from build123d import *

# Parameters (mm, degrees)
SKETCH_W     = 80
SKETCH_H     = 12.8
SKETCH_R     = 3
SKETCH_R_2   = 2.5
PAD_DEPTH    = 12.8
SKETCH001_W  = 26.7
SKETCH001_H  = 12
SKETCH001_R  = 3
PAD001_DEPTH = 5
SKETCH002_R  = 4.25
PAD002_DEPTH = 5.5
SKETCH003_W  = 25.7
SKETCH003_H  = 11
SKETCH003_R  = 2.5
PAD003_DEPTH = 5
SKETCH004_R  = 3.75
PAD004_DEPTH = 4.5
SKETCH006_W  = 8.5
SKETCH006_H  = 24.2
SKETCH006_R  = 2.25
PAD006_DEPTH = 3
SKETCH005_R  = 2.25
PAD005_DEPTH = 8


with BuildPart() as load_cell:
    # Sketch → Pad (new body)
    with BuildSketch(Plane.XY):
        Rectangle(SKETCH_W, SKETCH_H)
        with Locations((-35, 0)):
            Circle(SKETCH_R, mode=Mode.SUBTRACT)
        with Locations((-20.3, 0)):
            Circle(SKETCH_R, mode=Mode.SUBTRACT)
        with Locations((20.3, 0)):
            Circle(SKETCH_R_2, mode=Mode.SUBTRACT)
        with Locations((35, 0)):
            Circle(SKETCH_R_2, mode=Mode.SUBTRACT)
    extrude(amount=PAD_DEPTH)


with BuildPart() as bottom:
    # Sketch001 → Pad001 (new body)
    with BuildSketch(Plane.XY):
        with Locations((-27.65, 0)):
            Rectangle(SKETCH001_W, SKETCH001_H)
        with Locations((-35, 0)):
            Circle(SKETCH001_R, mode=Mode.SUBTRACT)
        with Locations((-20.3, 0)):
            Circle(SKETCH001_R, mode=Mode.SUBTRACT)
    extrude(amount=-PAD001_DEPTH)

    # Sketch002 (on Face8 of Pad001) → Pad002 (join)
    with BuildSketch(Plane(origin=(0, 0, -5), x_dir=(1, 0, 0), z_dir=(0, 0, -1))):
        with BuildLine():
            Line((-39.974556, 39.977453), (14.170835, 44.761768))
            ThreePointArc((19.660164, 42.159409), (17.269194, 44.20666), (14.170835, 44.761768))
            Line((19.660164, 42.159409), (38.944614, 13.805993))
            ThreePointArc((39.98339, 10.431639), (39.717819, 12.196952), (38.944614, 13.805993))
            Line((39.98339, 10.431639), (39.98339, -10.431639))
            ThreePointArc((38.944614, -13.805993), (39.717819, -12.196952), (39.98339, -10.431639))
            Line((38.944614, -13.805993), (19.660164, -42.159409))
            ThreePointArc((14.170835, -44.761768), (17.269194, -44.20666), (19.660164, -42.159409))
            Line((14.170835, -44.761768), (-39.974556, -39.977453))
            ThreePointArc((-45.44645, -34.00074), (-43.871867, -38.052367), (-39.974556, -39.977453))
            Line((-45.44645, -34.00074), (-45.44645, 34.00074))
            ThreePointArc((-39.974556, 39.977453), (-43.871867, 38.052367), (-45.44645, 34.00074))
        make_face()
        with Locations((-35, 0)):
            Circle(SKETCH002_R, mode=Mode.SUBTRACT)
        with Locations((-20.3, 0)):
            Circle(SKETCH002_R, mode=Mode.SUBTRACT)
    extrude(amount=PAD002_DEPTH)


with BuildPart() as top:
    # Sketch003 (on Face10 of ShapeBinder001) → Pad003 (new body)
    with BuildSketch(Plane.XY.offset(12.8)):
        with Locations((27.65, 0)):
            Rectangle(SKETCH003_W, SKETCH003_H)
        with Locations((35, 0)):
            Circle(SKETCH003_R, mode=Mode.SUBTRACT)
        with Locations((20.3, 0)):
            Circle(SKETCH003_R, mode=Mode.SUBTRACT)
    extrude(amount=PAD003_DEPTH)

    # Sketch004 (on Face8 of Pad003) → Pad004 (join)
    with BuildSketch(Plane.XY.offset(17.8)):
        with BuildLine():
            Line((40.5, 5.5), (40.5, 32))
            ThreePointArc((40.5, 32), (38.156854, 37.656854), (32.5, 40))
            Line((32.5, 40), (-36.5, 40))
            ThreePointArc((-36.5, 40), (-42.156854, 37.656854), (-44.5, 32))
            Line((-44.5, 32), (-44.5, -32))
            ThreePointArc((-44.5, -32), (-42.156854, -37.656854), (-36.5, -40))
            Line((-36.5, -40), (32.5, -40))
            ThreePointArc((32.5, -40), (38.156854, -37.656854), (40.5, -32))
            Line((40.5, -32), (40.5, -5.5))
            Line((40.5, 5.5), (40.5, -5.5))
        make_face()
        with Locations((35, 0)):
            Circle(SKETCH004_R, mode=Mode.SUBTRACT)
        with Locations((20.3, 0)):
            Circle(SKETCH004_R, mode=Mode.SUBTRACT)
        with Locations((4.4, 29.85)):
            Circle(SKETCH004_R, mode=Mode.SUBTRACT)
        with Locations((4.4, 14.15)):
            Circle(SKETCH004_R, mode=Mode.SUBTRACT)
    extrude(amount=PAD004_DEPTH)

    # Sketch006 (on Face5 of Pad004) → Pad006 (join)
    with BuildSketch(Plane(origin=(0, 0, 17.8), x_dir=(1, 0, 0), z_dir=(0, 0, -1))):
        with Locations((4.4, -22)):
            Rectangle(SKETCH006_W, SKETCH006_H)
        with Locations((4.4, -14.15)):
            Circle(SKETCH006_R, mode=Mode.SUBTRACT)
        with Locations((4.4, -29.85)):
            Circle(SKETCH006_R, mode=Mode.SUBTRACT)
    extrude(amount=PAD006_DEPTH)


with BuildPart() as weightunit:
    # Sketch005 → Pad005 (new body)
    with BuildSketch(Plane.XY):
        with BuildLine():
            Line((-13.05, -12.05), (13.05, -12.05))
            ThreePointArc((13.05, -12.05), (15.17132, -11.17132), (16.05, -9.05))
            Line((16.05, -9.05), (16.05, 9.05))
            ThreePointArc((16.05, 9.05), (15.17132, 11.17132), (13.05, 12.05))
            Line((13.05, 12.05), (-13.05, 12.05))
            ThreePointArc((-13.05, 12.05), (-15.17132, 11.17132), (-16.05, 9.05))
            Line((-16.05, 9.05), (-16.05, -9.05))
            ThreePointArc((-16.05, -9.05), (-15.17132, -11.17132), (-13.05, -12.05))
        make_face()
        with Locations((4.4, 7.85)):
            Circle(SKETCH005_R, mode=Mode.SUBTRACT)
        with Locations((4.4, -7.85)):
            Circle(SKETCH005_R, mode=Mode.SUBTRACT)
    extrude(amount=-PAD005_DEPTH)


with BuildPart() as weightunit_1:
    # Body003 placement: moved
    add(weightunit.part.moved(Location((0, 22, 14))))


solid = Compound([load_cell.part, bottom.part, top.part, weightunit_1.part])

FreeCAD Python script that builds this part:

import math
import FreeCAD as App
import Part
import Sketcher


def add_polygon(sketch, points):
    """Adds a closed chain of lines whose ends are joined by coincident constraints."""
    first, n = sketch.GeometryCount, len(points)
    for a, b in zip(points, points[1:] + points[:1]):
        sketch.addGeometry(Part.LineSegment(App.Vector(*a, 0), App.Vector(*b, 0)), False)
    for i in range(n):
        sketch.addConstraint(Sketcher.Constraint("Coincident", first + i, 2, first + (i + 1) % n, 1))

doc = App.newDocument("Part")
body = doc.addObject("PartDesign::Body", "Body")

sketch1 = body.newObject("Sketcher::SketchObject", "Sketch")
sketch1.AttachmentSupport = (doc.getObject("XY_Plane"), [""])
sketch1.MapMode = "FlatFace"
add_polygon(sketch1, [(-40, 6.4), (-40, -6.4), (40, -6.4), (40, 6.4)])
sketch1.addGeometry(Part.Circle(App.Vector(-35, 0, 0), App.Vector(0, 0, 1), 3), False)
sketch1.addGeometry(Part.Circle(App.Vector(-20.3, 0, 0), App.Vector(0, 0, 1), 3), False)
sketch1.addGeometry(Part.Circle(App.Vector(20.3, 0, 0), App.Vector(0, 0, 1), 2.5), False)
sketch1.addGeometry(Part.Circle(App.Vector(35, 0, 0), App.Vector(0, 0, 1), 2.5), False)
sketch1.addConstraint([
    Sketcher.Constraint("Vertical", 0),
    Sketcher.Constraint("Horizontal", 1),
    Sketcher.Constraint("Vertical", 2),
    Sketcher.Constraint("Horizontal", 3),
    Sketcher.Constraint("Equal", 4, 5),
    Sketcher.Constraint("Equal", 6, 7),
    Sketcher.Constraint("Symmetric", 5, 3, 6, 3, -1, 1),
    Sketcher.Constraint("Symmetric", 4, 3, 7, 3, -1, 1),
    Sketcher.Constraint("Symmetric", 0, 2, 2, 2, -1, 1),
    Sketcher.Constraint("PointOnObject", 4, 3, -1),
    Sketcher.Constraint("PointOnObject", 5, 3, -1),
    Sketcher.Constraint("Diameter", 4, 6.0),
    Sketcher.Constraint("Diameter", 6, 5.0),
    Sketcher.Constraint("DistanceX", 1, 1, 1, 2, 80.0),
    Sketcher.Constraint("DistanceY", 0, 2, 0, 1, 12.8),
    Sketcher.Constraint("DistanceX", 4, 3, -1, 1, 35.0),
    Sketcher.Constraint("DistanceX", 5, 3, -1, 1, 20.3),
])
pad1 = body.newObject("PartDesign::Pad", "Pad")
pad1.Profile = sketch1
pad1.Length = 12.8
body2 = doc.addObject("PartDesign::Body", "Body001")

sketch2 = body2.newObject("Sketcher::SketchObject", "Sketch001")
sketch2.AttachmentSupport = (doc.getObject("XY_Plane001"), [""])
sketch2.MapMode = "FlatFace"
add_polygon(sketch2, [(-41, 6), (-41, -6), (-14.3, -6), (-14.3, 6)])
sketch2.addGeometry(Part.Circle(App.Vector(-35, 0, 0), App.Vector(0, 0, 1), 3), False)
sketch2.addGeometry(Part.Circle(App.Vector(-20.3, 0, 0), App.Vector(0, 0, 1), 3), False)
sketch2.addConstraint([
    Sketcher.Constraint("Vertical", 0),
    Sketcher.Constraint("Horizontal", 1),
    Sketcher.Constraint("Vertical", 2),
    Sketcher.Constraint("Horizontal", 3),
    Sketcher.Constraint("Equal", 4, 5),
    Sketcher.Constraint("PointOnObject", 4, 3, -1),
    Sketcher.Constraint("PointOnObject", 5, 3, -1),
    Sketcher.Constraint("Diameter", 4, 6.0),
    Sketcher.Constraint("DistanceY", 0, 2, 0, 1, 12.0),
    Sketcher.Constraint("DistanceX", 1, 1, 1, 2, 26.7),
    Sketcher.Constraint("DistanceX", 4, 3, -1, 1, 35.0),
    Sketcher.Constraint("DistanceX", 0, 2, -1, 1, 41.0),
    Sketcher.Constraint("DistanceY", 0, 2, -1, 1, 6.0),
    Sketcher.Constraint("DistanceX", 5, 3, 1, 2, 6.0),
])
pad2 = body2.newObject("PartDesign::Pad", "Pad001")
pad2.Profile = sketch2
pad2.Length = 5
pad2.Reversed = True

sketch3 = body2.newObject("Sketcher::SketchObject", "Sketch002")
sketch3.AttachmentSupport = (doc.getObject("XY_Plane001"), [""])
sketch3.MapMode = "FlatFace"
sketch3.AttachmentOffset = App.Placement(App.Vector(0, 0, -5), App.Rotation())
sketch3.addGeometry([
    Part.LineSegment(App.Vector(14.2, -44.8, 0), App.Vector(-40, -40, 0)),
    Part.ArcOfCircle(Part.Circle(App.Vector(-39.4, -34, 0), App.Vector(0, 0, 1), 6), math.radians(-180), math.radians(-95)),
    Part.LineSegment(App.Vector(-45.4, -34, 0), App.Vector(-45.4, 34, 0)),
    Part.ArcOfCircle(Part.Circle(App.Vector(-39.4, 34, 0), App.Vector(0, 0, 1), 6), math.radians(95), math.radians(180)),
    Part.LineSegment(App.Vector(-40, 40, 0), App.Vector(14.2, 44.8, 0)),
    Part.ArcOfCircle(Part.Circle(App.Vector(14.7, 38.8, 0), App.Vector(0, 0, 1), 6), math.radians(34), math.radians(95)),
    Part.LineSegment(App.Vector(19.7, 42.2, 0), App.Vector(38.9, 13.8, 0)),
    Part.ArcOfCircle(Part.Circle(App.Vector(34, 10.4, 0), App.Vector(0, 0, 1), 6), math.radians(0), math.radians(34)),
    Part.LineSegment(App.Vector(40, 10.4, 0), App.Vector(40, -10.4, 0)),
    Part.ArcOfCircle(Part.Circle(App.Vector(34, -10.4, 0), App.Vector(0, 0, 1), 6), math.radians(-34), math.radians(0)),
    Part.LineSegment(App.Vector(38.9, -13.8, 0), App.Vector(19.7, -42.2, 0)),
    Part.ArcOfCircle(Part.Circle(App.Vector(14.7, -38.8, 0), App.Vector(0, 0, 1), 6), math.radians(-95), math.radians(-34)),
    Part.Circle(App.Vector(-20.3, 0, 0), App.Vector(0, 0, 1), 4.2),
    Part.Circle(App.Vector(-35, 0, 0), App.Vector(0, 0, 1), 4.2),
], False)
sketch3.addConstraint([
    Sketcher.Constraint("Tangent", 0, 2, 1, 2),
    Sketcher.Constraint("Tangent", 1, 1, 2, 1),
    Sketcher.Constraint("Tangent", 2, 2, 3, 2),
    Sketcher.Constraint("Tangent", 3, 1, 4, 1),
    Sketcher.Constraint("Tangent", 4, 2, 5, 2),
    Sketcher.Constraint("Tangent", 5, 1, 6, 1),
    Sketcher.Constraint("Tangent", 6, 2, 7, 2),
    Sketcher.Constraint("Tangent", 7, 1, 8, 1),
    Sketcher.Constraint("Tangent", 8, 2, 9, 2),
    Sketcher.Constraint("Tangent", 9, 1, 10, 1),
    Sketcher.Constraint("Tangent", 10, 2, 11, 2),
    Sketcher.Constraint("Tangent", 11, 1, 0, 1),
    Sketcher.Constraint("Vertical", 2),
    Sketcher.Constraint("Vertical", 8),
    Sketcher.Constraint("Equal", 1, 3),
    Sketcher.Constraint("Equal", 5, 7),
    Sketcher.Constraint("Equal", 7, 9),
    Sketcher.Constraint("Equal", 9, 11),
    Sketcher.Constraint("Equal", 12, 13),
    Sketcher.Constraint("Symmetric", 5, 3, 11, 3, -1),
    Sketcher.Constraint("PointOnObject", 12, 3, -1),
    Sketcher.Constraint("PointOnObject", 13, 3, -1),
    Sketcher.Constraint("Vertical", 0, 2, 3, 1),
    Sketcher.Constraint("Vertical", 6, 2, 9, 1),
    Sketcher.Constraint("Radius", 1, 6.0),
    Sketcher.Constraint("Diameter", 12, 8.5),
    Sketcher.Constraint("DistanceX", 13, 3, -1, 1, 35.0),
    Sketcher.Constraint("DistanceX", 12, 3, -1, 1, 20.3),
    Sketcher.Constraint("Radius", 5, 5.999997),
    Sketcher.Constraint("DistanceY", 2, 1, 2, 2, 68.00148),
    Sketcher.Constraint("DistanceY", 8, 2, 8, 1, 20.863278),
    Sketcher.Constraint("DistanceY", 9, 3, 5, 3, 49.216699),
    Sketcher.Constraint("DistanceX", 0, 2, 11, 3, 54.673499),
    Sketcher.Constraint("Distance", 6, 34.290031),
    Sketcher.Constraint("DistanceX", 1, 3, -1, 1, 39.44645),
])
pad3 = body2.newObject("PartDesign::Pad", "Pad002")
pad3.Profile = sketch3
pad3.Length = 5.5
pad3.Reversed = True
body3 = doc.addObject("PartDesign::Body", "Body002")

sketch4 = body3.newObject("Sketcher::SketchObject", "Sketch003")
sketch4.AttachmentSupport = (doc.getObject("XY_Plane002"), [""])
sketch4.MapMode = "FlatFace"
sketch4.AttachmentOffset = App.Placement(App.Vector(0, 0, 12.8), App.Rotation())
add_polygon(sketch4, [(14.8, 5.5), (14.8, -5.5), (40.5, -5.5), (40.5, 5.5)])
sketch4.addGeometry(Part.Circle(App.Vector(20.3, 0, 0), App.Vector(0, 0, 1), 2.5), False)
sketch4.addGeometry(Part.Circle(App.Vector(35, 0, 0), App.Vector(0, 0, 1), 2.5), False)
sketch4.addConstraint([
    Sketcher.Constraint("Vertical", 0),
    Sketcher.Constraint("Horizontal", 1),
    Sketcher.Constraint("Vertical", 2),
    Sketcher.Constraint("Horizontal", 3),
    Sketcher.Constraint("Equal", 4, 5),
    Sketcher.Constraint("PointOnObject", 4, 3, -1),
    Sketcher.Constraint("PointOnObject", 5, 3, -1),
    Sketcher.Constraint("Diameter", 4, 5.0),
    Sketcher.Constraint("DistanceY", 0, 2, 0, 1, 11.0),
    Sketcher.Constraint("DistanceX", 1, 1, 1, 2, 25.7),
    Sketcher.Constraint("DistanceX", -1, 1, 5, 3, 35.0),
    Sketcher.Constraint("DistanceX", -1, 1, 4, 3, 20.3),
    Sketcher.Constraint("DistanceX", -1, 1, 0, 2, 14.8),
    Sketcher.Constraint("DistanceY", 0, 2, -1, 1, 5.5),
])
pad4 = body3.newObject("PartDesign::Pad", "Pad003")
pad4.Profile = sketch4
pad4.Length = 5

sketch5 = body3.newObject("Sketcher::SketchObject", "Sketch004")
sketch5.AttachmentSupport = (doc.getObject("XY_Plane002"), [""])
sketch5.MapMode = "FlatFace"
sketch5.AttachmentOffset = App.Placement(App.Vector(0, 0, 17.8), App.Rotation())
sketch5.addGeometry([
    Part.ArcOfCircle(Part.Circle(App.Vector(32.5, 32, 0), App.Vector(0, 0, 1), 8), math.radians(0), math.radians(90)),
    Part.LineSegment(App.Vector(32.5, 40, 0), App.Vector(-36.5, 40, 0)),
    Part.ArcOfCircle(Part.Circle(App.Vector(-36.5, 32, 0), App.Vector(0, 0, 1), 8), math.radians(90), math.radians(180)),
    Part.LineSegment(App.Vector(-44.5, 32, 0), App.Vector(-44.5, -32, 0)),
    Part.ArcOfCircle(Part.Circle(App.Vector(-36.5, -32, 0), App.Vector(0, 0, 1), 8), math.radians(-180), math.radians(-90)),
    Part.LineSegment(App.Vector(-36.5, -40, 0), App.Vector(32.5, -40, 0)),
    Part.ArcOfCircle(Part.Circle(App.Vector(32.5, -32, 0), App.Vector(0, 0, 1), 8), math.radians(-90), math.radians(0)),
    Part.LineSegment(App.Vector(40.5, -32, 0), App.Vector(40.5, 32, 0)),
    Part.Circle(App.Vector(4.4, 14.2, 0), App.Vector(0, 0, 1), 3.8),
    Part.Circle(App.Vector(20.3, 0, 0), App.Vector(0, 0, 1), 3.8),
    Part.Circle(App.Vector(35, 0, 0), App.Vector(0, 0, 1), 3.8),
    Part.Circle(App.Vector(4.4, 29.9, 0), App.Vector(0, 0, 1), 3.8),
], False)
sketch5.addConstraint([
    Sketcher.Constraint("Tangent", 0, 2, 1, 1),
    Sketcher.Constraint("Tangent", 1, 2, 2, 1),
    Sketcher.Constraint("Tangent", 2, 2, 3, 1),
    Sketcher.Constraint("Tangent", 3, 2, 4, 1),
    Sketcher.Constraint("Tangent", 4, 2, 5, 1),
    Sketcher.Constraint("Tangent", 5, 2, 6, 1),
    Sketcher.Constraint("Tangent", 6, 2, 7, 1),
    Sketcher.Constraint("Tangent", 7, 2, 0, 1),
    Sketcher.Constraint("Horizontal", 1),
    Sketcher.Constraint("Vertical", 3),
    Sketcher.Constraint("Horizontal", 5),
    Sketcher.Constraint("Vertical", 7),
    Sketcher.Constraint("Equal", 0, 2),
    Sketcher.Constraint("Equal", 2, 4),
    Sketcher.Constraint("Equal", 4, 6),
    Sketcher.Constraint("Equal", 8, 9),
    Sketcher.Constraint("Equal", 9, 10),
    Sketcher.Constraint("Equal", 10, 11),
    Sketcher.Constraint("PointOnObject", 9, 3, -1),
    Sketcher.Constraint("PointOnObject", 10, 3, -1),
    Sketcher.Constraint("Vertical", 8, 3, 11, 3),
    Sketcher.Constraint("Radius", 0, 8.000001),
    Sketcher.Constraint("Diameter", 8, 7.5),
    Sketcher.Constraint("DistanceX", 1, 2, 1, 1, 69.0),
    Sketcher.Constraint("DistanceY", 3, 2, 3, 1, 64.0),
    Sketcher.Constraint("DistanceY", -1, 1, 0, 3, 31.999999),
    Sketcher.Constraint("DistanceX", -1, 1, 10, 3, 35.0),
    Sketcher.Constraint("DistanceX", -1, 1, 0, 3, 32.499999),
    Sketcher.Constraint("DistanceX", -1, 1, 8, 3, 4.4),
    Sketcher.Constraint("DistanceX", -1, 1, 9, 3, 20.3),
    Sketcher.Constraint("DistanceY", 8, 3, 11, 3, 15.7),
    Sketcher.Constraint("DistanceY", -1, 1, 8, 3, 14.15),
])
pad5 = body3.newObject("PartDesign::Pad", "Pad004")
pad5.Profile = sketch5
pad5.Length = 4.5

sketch6 = body3.newObject("Sketcher::SketchObject", "Sketch005")
sketch6.AttachmentSupport = (doc.getObject("XY_Plane002"), [""])
sketch6.MapMode = "FlatFace"
sketch6.AttachmentOffset = App.Placement(App.Vector(0, 0, 17.8), App.Rotation())
add_polygon(sketch6, [(0.1, 9.9), (0.1, 34.1), (8.7, 34.1), (8.7, 9.9)])
sketch6.addGeometry(Part.Circle(App.Vector(4.4, 29.9, 0), App.Vector(0, 0, 1), 2.2), False)
sketch6.addGeometry(Part.Circle(App.Vector(4.4, 14.2, 0), App.Vector(0, 0, 1), 2.2), False)
sketch6.addConstraint([
    Sketcher.Constraint("Vertical", 0),
    Sketcher.Constraint("Horizontal", 1),
    Sketcher.Constraint("Vertical", 2),
    Sketcher.Constraint("Horizontal", 3),
    Sketcher.Constraint("Equal", 4, 5),
    Sketcher.Constraint("Vertical", 4, 3, 5, 3),
    Sketcher.Constraint("Diameter", 4, 4.5),
    Sketcher.Constraint("DistanceX", 1, 1, 1, 2, 8.5),
    Sketcher.Constraint("DistanceY", 0, 1, 0, 2, 24.2),
    Sketcher.Constraint("DistanceX", -1, 1, 4, 3, 4.4),
    Sketcher.Constraint("DistanceY", -1, 1, 0, 2, 34.1),
    Sketcher.Constraint("DistanceY", 5, 3, 4, 3, 15.7),
    Sketcher.Constraint("DistanceY", -1, 1, 4, 3, 29.85),
    Sketcher.Constraint("DistanceX", -1, 1, 0, 2, 0.15),
])
pad6 = body3.newObject("PartDesign::Pad", "Pad005")
pad6.Profile = sketch6
pad6.Length = 3
pad6.Reversed = True
body4 = doc.addObject("PartDesign::Body", "Body003")

sketch7 = body4.newObject("Sketcher::SketchObject", "Sketch006")
sketch7.AttachmentSupport = (doc.getObject("XY_Plane003"), [""])
sketch7.MapMode = "FlatFace"
sketch7.addGeometry([
    Part.LineSegment(App.Vector(-13.1, -12.1, 0), App.Vector(13.1, -12.1, 0)),
    Part.ArcOfCircle(Part.Circle(App.Vector(13, -9, 0), App.Vector(0, 0, 1), 3), math.radians(-90), math.radians(0)),
    Part.LineSegment(App.Vector(16.1, -9.1, 0), App.Vector(16.1, 9.1, 0)),
    Part.ArcOfCircle(Part.Circle(App.Vector(13, 9, 0), App.Vector(0, 0, 1), 3), math.radians(0), math.radians(90)),
    Part.LineSegment(App.Vector(13.1, 12.1, 0), App.Vector(-13.1, 12.1, 0)),
    Part.ArcOfCircle(Part.Circle(App.Vector(-13, 9, 0), App.Vector(0, 0, 1), 3), math.radians(90), math.radians(180)),
    Part.LineSegment(App.Vector(-16.1, 9.1, 0), App.Vector(-16.1, -9.1, 0)),
    Part.ArcOfCircle(Part.Circle(App.Vector(-13, -9, 0), App.Vector(0, 0, 1), 3), math.radians(-180), math.radians(-90)),
    Part.Circle(App.Vector(4.4, -7.8, 0), App.Vector(0, 0, 1), 2.2),
    Part.Circle(App.Vector(4.4, 7.8, 0), App.Vector(0, 0, 1), 2.2),
], False)
sketch7.addConstraint([
    Sketcher.Constraint("Tangent", 0, 2, 1, 1),
    Sketcher.Constraint("Tangent", 1, 2, 2, 1),
    Sketcher.Constraint("Tangent", 2, 2, 3, 1),
    Sketcher.Constraint("Tangent", 3, 2, 4, 1),
    Sketcher.Constraint("Tangent", 4, 2, 5, 1),
    Sketcher.Constraint("Tangent", 5, 2, 6, 1),
    Sketcher.Constraint("Tangent", 6, 2, 7, 1),
    Sketcher.Constraint("Tangent", 7, 2, 0, 1),
    Sketcher.Constraint("Horizontal", 0),
    Sketcher.Constraint("Vertical", 2),
    Sketcher.Constraint("Horizontal", 4),
    Sketcher.Constraint("Vertical", 6),
    Sketcher.Constraint("Equal", 1, 3),
    Sketcher.Constraint("Equal", 3, 5),
    Sketcher.Constraint("Equal", 5, 7),
    Sketcher.Constraint("Equal", 8, 9),
    Sketcher.Constraint("Symmetric", 1, 3, 5, 3, -1, 1),
    Sketcher.Constraint("Symmetric", 8, 3, 9, 3, -1),
    Sketcher.Constraint("Radius", 1, 3.000001),
    Sketcher.Constraint("Diameter", 8, 4.5),
    Sketcher.Constraint("DistanceX", 0, 1, 0, 2, 26.1),
    Sketcher.Constraint("DistanceY", 2, 1, 2, 2, 18.1),
    Sketcher.Constraint("DistanceX", -1, 1, 8, 3, 4.4),
    Sketcher.Constraint("DistanceY", 1, 3, 8, 3, 1.199999),
])
pad7 = body4.newObject("PartDesign::Pad", "Pad006")
pad7.Profile = sketch7
pad7.Length = 8
pad7.Reversed = True
body5 = doc.addObject("PartDesign::Body", "Body004")
doc.recompute()

body4.Placement = App.Placement(App.Vector(0, 22, 14), App.Rotation(App.Vector(0, 0, 1), 0))
boolean = body5.newObject("PartDesign::Boolean", "Boolean")
boolean.Type = "Fuse"
boolean.addObjects([body4])

doc.recompute()
